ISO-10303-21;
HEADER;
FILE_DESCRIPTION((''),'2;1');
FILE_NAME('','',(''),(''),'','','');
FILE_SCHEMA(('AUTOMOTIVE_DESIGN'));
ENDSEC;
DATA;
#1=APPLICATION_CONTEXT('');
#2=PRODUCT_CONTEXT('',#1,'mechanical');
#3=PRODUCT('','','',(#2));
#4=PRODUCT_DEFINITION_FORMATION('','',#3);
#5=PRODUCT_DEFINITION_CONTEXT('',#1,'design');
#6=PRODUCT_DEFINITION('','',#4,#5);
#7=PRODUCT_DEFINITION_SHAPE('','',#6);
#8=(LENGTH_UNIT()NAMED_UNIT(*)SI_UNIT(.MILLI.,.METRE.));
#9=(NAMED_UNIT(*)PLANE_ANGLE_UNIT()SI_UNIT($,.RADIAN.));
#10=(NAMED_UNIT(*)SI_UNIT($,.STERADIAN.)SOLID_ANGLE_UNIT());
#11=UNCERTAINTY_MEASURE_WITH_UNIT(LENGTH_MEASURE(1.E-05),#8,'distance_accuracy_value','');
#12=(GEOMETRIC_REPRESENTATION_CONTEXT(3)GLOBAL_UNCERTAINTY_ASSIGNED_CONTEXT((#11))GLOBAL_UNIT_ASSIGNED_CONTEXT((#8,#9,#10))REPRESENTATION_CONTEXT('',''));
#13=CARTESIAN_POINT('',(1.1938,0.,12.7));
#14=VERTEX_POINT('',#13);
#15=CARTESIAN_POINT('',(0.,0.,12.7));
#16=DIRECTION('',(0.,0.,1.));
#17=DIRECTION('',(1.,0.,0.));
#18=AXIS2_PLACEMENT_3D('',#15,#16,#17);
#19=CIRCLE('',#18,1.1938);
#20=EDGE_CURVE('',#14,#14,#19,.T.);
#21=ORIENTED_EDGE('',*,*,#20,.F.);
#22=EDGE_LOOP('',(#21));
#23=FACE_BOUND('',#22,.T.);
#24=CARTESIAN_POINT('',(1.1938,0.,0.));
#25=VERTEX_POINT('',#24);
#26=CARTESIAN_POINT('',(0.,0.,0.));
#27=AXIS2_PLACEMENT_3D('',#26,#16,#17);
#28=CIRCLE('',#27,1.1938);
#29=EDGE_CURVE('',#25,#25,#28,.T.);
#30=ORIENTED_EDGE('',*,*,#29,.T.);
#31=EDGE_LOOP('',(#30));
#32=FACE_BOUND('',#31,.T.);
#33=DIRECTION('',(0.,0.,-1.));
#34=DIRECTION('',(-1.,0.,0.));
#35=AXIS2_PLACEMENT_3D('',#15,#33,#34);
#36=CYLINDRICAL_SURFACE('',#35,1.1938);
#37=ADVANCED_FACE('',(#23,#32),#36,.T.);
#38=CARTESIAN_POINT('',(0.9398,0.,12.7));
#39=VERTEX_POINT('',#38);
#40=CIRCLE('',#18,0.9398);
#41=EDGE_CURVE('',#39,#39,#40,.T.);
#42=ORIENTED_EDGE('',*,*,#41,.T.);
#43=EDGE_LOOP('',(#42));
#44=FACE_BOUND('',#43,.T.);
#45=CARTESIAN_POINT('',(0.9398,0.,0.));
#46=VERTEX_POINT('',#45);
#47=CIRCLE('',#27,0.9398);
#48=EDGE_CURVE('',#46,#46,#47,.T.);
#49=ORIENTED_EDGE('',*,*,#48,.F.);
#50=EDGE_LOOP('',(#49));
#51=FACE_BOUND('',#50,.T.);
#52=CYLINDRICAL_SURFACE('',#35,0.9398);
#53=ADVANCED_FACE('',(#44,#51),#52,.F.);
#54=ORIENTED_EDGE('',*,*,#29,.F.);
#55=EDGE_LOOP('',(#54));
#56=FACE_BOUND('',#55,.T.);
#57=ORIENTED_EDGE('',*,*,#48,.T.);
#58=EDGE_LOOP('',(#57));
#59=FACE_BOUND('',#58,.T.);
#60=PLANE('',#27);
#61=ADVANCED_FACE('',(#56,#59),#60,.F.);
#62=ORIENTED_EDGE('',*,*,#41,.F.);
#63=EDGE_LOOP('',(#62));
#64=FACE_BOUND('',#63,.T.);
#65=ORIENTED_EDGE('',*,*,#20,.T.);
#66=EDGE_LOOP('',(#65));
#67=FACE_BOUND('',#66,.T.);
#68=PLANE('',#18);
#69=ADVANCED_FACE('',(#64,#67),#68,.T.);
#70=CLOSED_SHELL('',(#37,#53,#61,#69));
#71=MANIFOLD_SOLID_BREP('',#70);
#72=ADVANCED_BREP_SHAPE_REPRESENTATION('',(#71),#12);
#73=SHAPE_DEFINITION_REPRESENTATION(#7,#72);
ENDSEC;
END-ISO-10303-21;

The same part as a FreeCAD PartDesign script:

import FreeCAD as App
import Part
import Sketcher
Q = App.Units.Quantity

doc = App.newDocument("Part")
params = doc.addObject("Spreadsheet::Sheet", "Params")
for row, (alias, value) in enumerate([
    ("sketch1_diameter", "0.094 in"),
    ("sketch1_diameter2", "0.074 in"),
    ("sketch2_height", "0.5 in"),
], start=1):
    params.set(f"A{row}", alias)
    params.set(f"B{row}", "=" + value)
    params.setAlias(f"B{row}", alias)

body = doc.addObject("PartDesign::Body", "Body")

# Sketch on XY plane
sketch1 = doc.addObject("Sketcher::SketchObject", "Sketch")
body.addObject(sketch1)
sketch1.AttachmentSupport = (doc.XY_Plane, [""])
sketch1.MapMode = "FlatFace"
sketch1.addGeometry(Part.Circle(App.Vector(0, 0, 0), App.Vector(0, 0, 1), 1.1938), False)
sketch1.addGeometry(Part.Circle(App.Vector(0, 0, 0), App.Vector(0, 0, 1), 0.9398), False)
sketch1.addConstraint(Sketcher.Constraint("Coincident", 0, 3, -1, 1))
sketch1.addConstraint(Sketcher.Constraint("Coincident", 1, 3, -1, 1))
sketch1.addConstraint(Sketcher.Constraint("Diameter", 0, Q("0.094 in")))
sketch1.addConstraint(Sketcher.Constraint("Diameter", 1, Q("0.074 in")))
sketch1.setExpression("Constraints[2]", "Params.sketch1_diameter")
sketch1.setExpression("Constraints[3]", "Params.sketch1_diameter2")

# Sketch on XZ plane
sketch2 = doc.addObject("Sketcher::SketchObject", "Sketch001")
body.addObject(sketch2)
sketch2.AttachmentSupport = (doc.XZ_Plane, [""])
sketch2.MapMode = "FlatFace"
sketch2.addGeometry(Part.LineSegment(App.Vector(0, 0, 0), App.Vector(0, 12.7, 0)), False)
sketch2.addConstraint(Sketcher.Constraint("Vertical", 0))
sketch2.addConstraint(Sketcher.Constraint("Coincident", 0, 1, -1, 1))
sketch2.addConstraint(Sketcher.Constraint("DistanceY", 0, 1, 0, 2, Q("0.5 in")))
sketch2.setExpression("Constraints[2]", "Params.sketch2_height")
doc.recompute()

additivepipe = doc.addObject("PartDesign::AdditivePipe", "AdditivePipe")
body.addObject(additivepipe)
additivepipe.Profile = sketch1
additivepipe.Spine = (sketch2, ["Edge1"])

doc.recompute()
